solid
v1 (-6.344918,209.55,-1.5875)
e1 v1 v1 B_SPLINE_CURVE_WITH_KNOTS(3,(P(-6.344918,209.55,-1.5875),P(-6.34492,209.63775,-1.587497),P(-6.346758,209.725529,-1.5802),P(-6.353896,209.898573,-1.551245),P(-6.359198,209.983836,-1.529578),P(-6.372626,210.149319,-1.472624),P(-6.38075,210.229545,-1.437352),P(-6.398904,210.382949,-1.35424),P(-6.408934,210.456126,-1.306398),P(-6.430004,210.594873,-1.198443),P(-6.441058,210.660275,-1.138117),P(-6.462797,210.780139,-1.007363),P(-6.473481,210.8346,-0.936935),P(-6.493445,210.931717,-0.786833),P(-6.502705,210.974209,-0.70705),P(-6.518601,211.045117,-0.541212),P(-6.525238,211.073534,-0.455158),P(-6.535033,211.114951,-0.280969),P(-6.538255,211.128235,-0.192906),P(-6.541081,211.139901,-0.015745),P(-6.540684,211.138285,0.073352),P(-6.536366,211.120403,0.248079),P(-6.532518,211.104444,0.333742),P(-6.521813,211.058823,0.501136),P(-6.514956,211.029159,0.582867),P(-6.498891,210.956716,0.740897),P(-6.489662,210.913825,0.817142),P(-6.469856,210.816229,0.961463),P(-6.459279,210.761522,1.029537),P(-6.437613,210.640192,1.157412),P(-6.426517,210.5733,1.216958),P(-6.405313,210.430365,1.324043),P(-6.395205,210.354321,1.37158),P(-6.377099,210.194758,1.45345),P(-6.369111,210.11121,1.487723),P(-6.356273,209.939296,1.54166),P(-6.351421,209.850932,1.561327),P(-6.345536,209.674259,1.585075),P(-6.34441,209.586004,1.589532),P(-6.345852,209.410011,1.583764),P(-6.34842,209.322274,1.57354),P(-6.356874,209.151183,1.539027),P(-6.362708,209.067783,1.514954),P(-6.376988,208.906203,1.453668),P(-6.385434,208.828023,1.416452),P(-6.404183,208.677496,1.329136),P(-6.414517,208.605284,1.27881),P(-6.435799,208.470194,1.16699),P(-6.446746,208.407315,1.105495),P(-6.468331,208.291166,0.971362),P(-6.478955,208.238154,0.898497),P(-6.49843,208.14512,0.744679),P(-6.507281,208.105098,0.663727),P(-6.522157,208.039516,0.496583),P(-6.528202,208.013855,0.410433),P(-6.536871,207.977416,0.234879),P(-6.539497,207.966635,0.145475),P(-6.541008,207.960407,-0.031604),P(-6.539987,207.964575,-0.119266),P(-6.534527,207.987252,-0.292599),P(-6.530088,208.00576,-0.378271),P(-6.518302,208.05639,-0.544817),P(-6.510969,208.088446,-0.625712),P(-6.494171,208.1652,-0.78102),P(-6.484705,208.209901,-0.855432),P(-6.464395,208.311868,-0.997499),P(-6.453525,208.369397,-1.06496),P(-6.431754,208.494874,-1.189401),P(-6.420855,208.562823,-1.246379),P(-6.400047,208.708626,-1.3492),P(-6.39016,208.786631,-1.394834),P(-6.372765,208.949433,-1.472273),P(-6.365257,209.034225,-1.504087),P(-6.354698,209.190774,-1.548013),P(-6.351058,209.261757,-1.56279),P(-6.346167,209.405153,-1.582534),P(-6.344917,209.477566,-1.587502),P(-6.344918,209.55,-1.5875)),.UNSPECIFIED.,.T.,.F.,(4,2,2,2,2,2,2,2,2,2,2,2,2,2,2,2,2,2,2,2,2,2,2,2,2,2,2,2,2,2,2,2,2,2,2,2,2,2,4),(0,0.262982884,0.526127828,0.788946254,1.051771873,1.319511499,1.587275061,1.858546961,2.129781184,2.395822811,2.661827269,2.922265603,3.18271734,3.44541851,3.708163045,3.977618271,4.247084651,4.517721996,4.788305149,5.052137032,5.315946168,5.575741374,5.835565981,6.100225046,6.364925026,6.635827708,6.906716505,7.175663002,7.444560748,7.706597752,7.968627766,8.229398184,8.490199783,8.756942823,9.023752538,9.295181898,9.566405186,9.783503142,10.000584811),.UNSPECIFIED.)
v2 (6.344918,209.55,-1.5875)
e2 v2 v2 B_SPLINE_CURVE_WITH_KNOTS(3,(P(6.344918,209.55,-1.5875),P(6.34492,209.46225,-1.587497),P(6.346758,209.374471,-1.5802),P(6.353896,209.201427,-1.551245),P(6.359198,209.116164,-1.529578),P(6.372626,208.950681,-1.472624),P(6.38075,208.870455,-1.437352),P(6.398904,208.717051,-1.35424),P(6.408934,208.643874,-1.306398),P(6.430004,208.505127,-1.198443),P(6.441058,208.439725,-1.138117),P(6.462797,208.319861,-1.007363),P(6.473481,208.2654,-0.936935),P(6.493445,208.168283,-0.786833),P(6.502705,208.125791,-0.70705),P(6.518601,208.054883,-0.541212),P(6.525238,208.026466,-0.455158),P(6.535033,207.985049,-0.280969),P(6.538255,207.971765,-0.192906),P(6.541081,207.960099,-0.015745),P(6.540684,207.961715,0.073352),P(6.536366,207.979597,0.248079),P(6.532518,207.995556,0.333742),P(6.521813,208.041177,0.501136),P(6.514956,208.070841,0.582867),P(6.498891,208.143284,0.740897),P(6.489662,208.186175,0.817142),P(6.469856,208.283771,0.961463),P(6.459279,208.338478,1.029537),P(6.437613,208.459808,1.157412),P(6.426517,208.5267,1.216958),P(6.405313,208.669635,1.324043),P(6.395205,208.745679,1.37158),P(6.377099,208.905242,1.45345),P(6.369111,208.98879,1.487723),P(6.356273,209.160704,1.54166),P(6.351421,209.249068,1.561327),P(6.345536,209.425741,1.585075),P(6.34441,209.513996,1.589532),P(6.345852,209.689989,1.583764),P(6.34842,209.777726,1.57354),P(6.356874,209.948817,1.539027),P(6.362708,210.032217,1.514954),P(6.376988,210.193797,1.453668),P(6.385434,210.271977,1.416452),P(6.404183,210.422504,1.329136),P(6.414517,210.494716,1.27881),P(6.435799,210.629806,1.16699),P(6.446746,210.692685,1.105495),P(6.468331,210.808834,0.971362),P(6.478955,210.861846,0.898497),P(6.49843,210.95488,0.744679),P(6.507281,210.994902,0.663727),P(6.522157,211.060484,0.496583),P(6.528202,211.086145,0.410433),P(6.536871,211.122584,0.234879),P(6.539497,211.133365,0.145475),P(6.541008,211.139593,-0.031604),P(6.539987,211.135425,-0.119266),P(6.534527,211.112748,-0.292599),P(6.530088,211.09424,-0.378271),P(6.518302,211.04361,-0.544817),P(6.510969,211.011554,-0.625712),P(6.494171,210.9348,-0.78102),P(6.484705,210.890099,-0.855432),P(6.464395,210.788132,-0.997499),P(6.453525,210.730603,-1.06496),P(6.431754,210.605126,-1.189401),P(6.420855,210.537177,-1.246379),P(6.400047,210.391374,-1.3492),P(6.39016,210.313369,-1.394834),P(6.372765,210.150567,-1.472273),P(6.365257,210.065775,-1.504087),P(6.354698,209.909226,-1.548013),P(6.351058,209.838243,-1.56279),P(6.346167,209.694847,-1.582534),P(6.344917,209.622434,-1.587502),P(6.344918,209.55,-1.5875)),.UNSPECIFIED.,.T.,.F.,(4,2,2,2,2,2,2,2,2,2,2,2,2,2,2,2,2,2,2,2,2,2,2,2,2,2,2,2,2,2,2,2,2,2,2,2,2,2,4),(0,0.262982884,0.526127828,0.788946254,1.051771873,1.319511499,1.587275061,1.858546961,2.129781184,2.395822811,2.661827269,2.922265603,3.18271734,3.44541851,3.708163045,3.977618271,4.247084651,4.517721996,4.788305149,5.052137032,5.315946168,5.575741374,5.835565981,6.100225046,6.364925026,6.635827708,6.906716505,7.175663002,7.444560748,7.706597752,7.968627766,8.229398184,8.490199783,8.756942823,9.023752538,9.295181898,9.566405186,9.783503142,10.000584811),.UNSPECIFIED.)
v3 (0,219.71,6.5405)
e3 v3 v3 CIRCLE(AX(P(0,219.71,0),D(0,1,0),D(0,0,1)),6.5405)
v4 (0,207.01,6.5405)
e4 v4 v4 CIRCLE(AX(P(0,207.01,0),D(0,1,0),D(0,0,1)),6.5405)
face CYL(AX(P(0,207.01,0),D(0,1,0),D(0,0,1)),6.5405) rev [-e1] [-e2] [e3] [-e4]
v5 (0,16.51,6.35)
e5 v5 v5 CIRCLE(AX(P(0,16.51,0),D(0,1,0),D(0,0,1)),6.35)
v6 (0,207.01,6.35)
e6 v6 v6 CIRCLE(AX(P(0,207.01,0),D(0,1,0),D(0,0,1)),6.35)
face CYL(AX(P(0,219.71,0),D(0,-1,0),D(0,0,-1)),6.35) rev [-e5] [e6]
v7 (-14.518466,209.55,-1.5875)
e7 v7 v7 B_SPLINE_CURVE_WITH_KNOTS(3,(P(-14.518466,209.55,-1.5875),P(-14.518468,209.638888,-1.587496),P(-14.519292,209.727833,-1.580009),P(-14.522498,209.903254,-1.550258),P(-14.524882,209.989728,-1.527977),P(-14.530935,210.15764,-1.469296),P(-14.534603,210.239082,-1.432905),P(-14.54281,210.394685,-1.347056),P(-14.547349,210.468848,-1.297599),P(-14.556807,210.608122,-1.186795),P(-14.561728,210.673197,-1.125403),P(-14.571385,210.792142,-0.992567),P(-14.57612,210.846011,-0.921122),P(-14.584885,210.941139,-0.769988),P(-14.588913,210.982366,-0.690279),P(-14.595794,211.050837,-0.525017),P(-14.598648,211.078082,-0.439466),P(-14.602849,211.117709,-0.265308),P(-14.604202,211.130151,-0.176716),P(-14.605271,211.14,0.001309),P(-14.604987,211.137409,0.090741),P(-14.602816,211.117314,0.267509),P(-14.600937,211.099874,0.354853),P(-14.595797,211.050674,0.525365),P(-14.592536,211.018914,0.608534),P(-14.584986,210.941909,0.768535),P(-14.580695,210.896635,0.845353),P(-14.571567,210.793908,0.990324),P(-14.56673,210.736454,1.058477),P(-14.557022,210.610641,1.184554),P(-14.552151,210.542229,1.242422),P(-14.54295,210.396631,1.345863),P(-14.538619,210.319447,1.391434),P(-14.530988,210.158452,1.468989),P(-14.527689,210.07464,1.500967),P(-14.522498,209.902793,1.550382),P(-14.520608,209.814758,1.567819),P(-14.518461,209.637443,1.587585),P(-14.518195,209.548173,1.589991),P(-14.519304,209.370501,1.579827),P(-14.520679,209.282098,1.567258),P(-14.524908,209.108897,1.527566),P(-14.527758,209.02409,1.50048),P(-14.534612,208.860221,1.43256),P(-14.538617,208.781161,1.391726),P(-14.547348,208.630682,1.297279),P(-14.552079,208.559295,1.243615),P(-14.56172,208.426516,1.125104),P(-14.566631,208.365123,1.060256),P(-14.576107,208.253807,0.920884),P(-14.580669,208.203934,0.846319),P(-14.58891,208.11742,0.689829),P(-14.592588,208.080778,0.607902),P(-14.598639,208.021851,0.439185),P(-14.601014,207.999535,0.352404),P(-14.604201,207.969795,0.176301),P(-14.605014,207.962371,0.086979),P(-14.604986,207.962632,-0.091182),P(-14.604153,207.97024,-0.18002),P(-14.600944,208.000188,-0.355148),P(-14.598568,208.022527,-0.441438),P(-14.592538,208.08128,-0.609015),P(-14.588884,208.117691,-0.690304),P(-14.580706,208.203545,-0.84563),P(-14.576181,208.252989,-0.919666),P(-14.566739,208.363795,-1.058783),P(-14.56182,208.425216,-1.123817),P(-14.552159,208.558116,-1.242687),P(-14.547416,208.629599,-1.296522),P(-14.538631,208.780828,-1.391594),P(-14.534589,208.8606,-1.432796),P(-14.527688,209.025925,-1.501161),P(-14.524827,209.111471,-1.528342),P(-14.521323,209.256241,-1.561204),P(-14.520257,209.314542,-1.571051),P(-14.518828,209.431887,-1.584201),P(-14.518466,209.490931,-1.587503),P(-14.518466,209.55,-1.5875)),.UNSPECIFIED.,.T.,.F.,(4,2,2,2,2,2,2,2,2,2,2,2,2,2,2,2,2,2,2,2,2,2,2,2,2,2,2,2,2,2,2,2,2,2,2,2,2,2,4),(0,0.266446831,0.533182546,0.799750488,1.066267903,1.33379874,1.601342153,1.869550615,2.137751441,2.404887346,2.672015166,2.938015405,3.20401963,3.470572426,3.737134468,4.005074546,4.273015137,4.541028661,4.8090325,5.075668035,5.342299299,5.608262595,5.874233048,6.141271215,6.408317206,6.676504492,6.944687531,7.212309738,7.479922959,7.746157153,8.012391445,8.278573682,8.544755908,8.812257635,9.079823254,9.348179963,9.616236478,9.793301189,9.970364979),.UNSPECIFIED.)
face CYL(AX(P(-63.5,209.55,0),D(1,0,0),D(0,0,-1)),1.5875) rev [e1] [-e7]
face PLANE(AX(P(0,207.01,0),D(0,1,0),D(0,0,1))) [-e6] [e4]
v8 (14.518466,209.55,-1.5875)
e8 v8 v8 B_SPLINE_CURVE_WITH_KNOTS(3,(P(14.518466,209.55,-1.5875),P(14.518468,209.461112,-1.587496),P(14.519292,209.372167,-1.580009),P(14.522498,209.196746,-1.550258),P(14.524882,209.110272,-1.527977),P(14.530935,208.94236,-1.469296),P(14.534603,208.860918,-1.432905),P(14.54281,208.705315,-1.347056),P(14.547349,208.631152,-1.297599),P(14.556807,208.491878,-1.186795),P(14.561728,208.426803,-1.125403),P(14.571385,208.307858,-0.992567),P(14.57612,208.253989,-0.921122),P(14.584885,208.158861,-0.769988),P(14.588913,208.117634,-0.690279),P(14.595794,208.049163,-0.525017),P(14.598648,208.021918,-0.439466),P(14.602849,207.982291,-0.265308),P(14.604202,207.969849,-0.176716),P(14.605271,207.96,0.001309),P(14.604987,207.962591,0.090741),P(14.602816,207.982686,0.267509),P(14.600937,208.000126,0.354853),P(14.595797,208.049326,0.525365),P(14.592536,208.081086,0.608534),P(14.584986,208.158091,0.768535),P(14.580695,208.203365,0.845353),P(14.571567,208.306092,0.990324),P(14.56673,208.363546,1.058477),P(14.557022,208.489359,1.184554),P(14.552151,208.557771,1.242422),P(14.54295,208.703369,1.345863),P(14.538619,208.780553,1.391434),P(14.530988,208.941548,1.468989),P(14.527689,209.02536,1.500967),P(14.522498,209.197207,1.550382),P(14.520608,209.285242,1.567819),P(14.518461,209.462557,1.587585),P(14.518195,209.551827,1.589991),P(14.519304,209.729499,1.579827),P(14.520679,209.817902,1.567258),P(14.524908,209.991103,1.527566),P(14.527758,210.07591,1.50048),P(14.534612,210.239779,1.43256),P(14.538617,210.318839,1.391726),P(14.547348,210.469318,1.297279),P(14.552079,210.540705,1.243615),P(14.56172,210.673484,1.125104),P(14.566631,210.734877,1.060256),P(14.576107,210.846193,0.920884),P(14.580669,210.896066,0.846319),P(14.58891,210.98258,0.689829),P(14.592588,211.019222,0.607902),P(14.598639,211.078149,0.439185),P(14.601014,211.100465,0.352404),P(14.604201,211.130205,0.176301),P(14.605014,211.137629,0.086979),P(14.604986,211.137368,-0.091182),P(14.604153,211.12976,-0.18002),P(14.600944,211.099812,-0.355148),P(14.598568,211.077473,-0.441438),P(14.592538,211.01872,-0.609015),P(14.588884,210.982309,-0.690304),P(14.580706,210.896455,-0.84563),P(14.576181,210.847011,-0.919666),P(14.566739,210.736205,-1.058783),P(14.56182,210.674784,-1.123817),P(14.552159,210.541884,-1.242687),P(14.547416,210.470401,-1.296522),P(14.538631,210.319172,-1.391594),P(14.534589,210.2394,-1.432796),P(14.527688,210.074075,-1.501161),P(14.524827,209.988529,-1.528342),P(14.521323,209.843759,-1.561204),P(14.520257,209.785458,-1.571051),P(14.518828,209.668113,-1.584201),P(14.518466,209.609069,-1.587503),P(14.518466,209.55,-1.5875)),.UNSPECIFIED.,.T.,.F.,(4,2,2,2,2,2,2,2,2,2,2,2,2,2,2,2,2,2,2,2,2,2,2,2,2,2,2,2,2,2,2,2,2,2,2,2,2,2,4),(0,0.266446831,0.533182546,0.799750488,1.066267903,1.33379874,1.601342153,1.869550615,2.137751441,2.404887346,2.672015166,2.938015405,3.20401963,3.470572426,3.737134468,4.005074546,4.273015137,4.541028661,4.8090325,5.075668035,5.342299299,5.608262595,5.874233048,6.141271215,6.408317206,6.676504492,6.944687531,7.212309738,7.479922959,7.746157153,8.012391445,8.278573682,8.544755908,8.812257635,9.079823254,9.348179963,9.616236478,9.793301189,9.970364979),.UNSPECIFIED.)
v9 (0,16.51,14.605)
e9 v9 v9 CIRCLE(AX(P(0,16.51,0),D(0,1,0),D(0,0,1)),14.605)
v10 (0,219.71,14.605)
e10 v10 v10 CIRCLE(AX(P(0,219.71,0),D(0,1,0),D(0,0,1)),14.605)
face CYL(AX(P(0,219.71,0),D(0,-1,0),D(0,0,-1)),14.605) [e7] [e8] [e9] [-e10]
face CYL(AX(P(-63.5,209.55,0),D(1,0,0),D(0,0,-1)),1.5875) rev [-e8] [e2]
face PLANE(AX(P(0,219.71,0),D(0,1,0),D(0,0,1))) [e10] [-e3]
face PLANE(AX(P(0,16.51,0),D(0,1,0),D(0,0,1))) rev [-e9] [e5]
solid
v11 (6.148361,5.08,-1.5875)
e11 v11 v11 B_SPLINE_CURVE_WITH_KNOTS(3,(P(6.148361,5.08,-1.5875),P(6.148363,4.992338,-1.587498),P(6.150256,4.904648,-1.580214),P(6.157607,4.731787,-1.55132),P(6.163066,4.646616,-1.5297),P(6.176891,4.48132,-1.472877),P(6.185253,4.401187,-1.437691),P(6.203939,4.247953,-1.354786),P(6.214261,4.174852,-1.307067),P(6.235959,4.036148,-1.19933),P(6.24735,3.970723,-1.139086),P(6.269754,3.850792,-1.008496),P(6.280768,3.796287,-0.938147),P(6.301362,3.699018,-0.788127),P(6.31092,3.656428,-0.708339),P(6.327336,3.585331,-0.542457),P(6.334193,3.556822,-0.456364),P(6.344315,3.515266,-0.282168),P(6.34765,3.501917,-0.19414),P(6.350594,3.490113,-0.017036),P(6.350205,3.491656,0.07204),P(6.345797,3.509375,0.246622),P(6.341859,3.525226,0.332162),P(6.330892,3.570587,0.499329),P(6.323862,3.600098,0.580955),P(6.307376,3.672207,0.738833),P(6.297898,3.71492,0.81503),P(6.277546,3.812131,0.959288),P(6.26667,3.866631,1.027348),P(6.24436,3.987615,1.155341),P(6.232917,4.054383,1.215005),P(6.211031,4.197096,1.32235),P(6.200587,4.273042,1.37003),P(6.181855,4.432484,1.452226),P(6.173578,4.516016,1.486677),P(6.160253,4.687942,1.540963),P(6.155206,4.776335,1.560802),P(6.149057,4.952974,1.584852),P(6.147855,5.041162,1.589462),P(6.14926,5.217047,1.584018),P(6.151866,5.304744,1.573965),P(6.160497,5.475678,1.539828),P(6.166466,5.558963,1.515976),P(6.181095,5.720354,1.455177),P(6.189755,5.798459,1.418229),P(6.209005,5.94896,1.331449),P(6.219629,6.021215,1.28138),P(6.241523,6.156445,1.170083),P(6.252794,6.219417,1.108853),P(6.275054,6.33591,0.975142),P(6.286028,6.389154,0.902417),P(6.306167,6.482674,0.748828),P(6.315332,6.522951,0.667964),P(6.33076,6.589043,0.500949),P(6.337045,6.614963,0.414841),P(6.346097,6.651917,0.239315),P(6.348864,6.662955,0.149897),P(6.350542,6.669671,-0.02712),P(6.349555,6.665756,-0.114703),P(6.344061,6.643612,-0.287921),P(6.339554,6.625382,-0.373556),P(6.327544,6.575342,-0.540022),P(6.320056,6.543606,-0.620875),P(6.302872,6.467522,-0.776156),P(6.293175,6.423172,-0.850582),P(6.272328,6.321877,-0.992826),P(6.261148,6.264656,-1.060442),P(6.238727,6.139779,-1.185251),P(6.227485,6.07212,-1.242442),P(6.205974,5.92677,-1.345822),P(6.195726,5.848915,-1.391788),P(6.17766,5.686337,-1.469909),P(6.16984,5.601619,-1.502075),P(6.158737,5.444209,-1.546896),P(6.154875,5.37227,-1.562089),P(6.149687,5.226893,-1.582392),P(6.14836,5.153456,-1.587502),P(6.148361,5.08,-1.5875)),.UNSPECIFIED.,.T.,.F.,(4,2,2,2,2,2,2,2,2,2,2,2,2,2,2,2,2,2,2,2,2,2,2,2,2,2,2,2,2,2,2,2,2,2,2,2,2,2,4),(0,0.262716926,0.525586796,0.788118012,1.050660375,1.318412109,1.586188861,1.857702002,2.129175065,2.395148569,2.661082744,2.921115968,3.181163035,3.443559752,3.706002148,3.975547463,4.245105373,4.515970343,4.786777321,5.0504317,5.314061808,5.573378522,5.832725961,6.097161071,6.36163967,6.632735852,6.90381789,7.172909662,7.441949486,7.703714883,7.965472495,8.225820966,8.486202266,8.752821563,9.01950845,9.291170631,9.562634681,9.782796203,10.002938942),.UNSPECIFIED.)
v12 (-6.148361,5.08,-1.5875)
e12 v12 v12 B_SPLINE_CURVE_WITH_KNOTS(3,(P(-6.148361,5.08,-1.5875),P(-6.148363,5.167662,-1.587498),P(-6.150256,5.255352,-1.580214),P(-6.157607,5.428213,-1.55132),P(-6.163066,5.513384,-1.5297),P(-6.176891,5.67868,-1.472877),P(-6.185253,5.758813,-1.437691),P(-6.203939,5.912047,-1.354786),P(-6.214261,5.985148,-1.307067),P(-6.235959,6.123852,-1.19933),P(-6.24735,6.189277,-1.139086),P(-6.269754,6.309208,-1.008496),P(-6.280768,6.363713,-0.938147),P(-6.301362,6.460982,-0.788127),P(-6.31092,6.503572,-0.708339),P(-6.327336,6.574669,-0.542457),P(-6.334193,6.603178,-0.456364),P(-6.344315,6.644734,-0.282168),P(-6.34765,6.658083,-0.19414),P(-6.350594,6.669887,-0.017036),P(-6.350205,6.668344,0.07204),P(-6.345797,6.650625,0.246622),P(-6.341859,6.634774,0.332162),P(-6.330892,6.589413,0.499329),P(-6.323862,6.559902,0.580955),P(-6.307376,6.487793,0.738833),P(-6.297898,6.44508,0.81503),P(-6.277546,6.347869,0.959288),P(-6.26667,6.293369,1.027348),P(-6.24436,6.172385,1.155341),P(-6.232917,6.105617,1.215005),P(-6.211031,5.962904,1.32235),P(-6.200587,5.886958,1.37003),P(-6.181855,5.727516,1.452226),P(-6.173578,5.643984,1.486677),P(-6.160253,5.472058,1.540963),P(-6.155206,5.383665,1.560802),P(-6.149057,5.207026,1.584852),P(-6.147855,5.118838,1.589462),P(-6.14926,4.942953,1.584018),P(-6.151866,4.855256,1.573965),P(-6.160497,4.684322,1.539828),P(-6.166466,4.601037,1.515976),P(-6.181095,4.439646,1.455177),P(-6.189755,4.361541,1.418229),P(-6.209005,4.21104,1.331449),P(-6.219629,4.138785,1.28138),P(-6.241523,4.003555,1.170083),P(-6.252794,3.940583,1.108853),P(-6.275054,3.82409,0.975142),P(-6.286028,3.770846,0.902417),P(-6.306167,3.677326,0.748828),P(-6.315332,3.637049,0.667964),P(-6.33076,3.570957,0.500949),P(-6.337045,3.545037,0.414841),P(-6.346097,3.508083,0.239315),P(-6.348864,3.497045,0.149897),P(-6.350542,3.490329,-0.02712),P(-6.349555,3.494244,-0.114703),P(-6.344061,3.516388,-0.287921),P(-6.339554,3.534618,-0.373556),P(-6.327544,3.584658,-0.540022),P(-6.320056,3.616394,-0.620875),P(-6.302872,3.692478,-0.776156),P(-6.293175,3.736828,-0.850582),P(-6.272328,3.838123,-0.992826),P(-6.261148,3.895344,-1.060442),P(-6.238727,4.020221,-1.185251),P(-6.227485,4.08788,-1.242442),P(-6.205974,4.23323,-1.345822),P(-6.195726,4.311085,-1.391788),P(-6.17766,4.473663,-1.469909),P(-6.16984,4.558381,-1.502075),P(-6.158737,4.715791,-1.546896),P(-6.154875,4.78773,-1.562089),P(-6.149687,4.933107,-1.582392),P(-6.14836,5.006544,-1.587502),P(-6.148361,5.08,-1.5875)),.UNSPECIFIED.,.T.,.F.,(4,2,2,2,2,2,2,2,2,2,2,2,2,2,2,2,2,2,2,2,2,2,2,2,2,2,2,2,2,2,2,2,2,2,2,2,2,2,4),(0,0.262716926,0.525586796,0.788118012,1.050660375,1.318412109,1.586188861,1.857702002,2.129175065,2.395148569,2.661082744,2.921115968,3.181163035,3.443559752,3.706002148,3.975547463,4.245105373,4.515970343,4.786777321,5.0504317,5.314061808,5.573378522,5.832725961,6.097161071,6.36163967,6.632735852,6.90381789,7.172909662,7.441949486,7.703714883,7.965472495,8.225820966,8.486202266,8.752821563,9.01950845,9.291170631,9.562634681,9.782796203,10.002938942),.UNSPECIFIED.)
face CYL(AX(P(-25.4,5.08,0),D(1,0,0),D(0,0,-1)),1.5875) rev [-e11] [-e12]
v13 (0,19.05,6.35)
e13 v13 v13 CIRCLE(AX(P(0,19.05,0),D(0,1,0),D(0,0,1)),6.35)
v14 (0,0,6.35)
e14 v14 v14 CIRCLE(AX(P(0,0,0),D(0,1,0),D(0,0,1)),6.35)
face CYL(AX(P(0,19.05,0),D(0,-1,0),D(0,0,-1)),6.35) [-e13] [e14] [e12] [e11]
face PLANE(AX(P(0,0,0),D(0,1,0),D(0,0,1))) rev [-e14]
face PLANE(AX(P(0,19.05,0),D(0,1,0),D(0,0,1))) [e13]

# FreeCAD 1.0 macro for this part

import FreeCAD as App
import Part
import Sketcher

V = App.Vector
Q = App.Units.Quantity

doc = App.newDocument("Part")
body = doc.addObject("PartDesign::Body", "Body")

# Sketch on XZ plane
sketch1 = body.newObject("Sketcher::SketchObject", "Sketch")
sketch1.AttachmentSupport = (doc.getObject("XZ_Plane"), [""])
sketch1.MapMode = "FlatFace"
sketch1.addGeometry(Part.Circle(V(0, 0, 0), V(0, 0, 1), 6), False)
sketch1.addConstraint([
    Sketcher.Constraint("Coincident", 0, 3, -1, 1),
    Sketcher.Constraint("Diameter", 0, Q("0.5 in")),
])
pad1 = body.newObject("PartDesign::Pad", "Pad")
pad1.Profile = sketch1
pad1.Length = Q("0.75 in")
pad1.Reversed = True

# Sketch on YZ plane
sketch2 = body.newObject("Sketcher::SketchObject", "Sketch001")
sketch2.AttachmentSupport = (doc.getObject("YZ_Plane"), [""])
sketch2.MapMode = "FlatFace"
sketch2.addGeometry(Part.Circle(V(5.1, 0, 0), V(0, 0, 1), 1.6), False)
sketch2.addConstraint([
    Sketcher.Constraint("PointOnObject", 0, 3, -1),
    Sketcher.Constraint("Diameter", 0, Q("0.125 in")),
    Sketcher.Constraint("DistanceX", -1, 1, 0, 3, Q("0.2 in")),
])
pocket1 = body.newObject("PartDesign::Pocket", "Pocket")
pocket1.Profile = sketch2
pocket1.Length = Q("2 in")
pocket1.Midplane = True
body2 = doc.addObject("PartDesign::Body", "Body001")

# Sketch on XZ plane
sketch3 = body2.newObject("Sketcher::SketchObject", "Sketch002")
sketch3.AttachmentSupport = (doc.getObject("XZ_Plane001"), [""])
sketch3.MapMode = "FlatFace"
sketch3.AttachmentOffset = App.Placement(V(0, 0, -0.65 * 25.4), App.Rotation())
sketch3.addGeometry([
    Part.Circle(V(0, 0, 0), V(0, 0, 1), 15),
    Part.Circle(V(0, 0, 0), V(0, 0, 1), 6),
], False)
sketch3.addConstraint([
    Sketcher.Constraint("Coincident", 0, 3, -1, 1),
    Sketcher.Constraint("Coincident", 1, 3, -1, 1),
    Sketcher.Constraint("Diameter", 1, Q("0.5 in")),
    Sketcher.Constraint("Diameter", 0, Q("1.15 in")),
])
pad2 = body2.newObject("PartDesign::Pad", "Pad001")
pad2.Profile = sketch3
pad2.Length = Q("8 in")
pad2.Reversed = True

# Sketch on YZ plane
sketch4 = body2.newObject("Sketcher::SketchObject", "Sketch003")
sketch4.AttachmentSupport = (doc.getObject("YZ_Plane001"), [""])
sketch4.MapMode = "FlatFace"
sketch4.addGeometry(Part.Circle(V(209.6, 0, 0), V(0, 0, 1), 1.6), False)
sketch4.addConstraint([
    Sketcher.Constraint("PointOnObject", 0, 3, -1),
    Sketcher.Constraint("Diameter", 0, Q("0.125 in")),
    Sketcher.Constraint("DistanceX", -1, 1, 0, 3, Q("8.25 in")),
])
pocket2 = body2.newObject("PartDesign::Pocket", "Pocket001")
pocket2.Profile = sketch4
pocket2.Length = Q("5 in")
pocket2.Midplane = True

# Sketch on XZ plane
sketch5 = body2.newObject("Sketcher::SketchObject", "Sketch004")
sketch5.AttachmentSupport = (doc.getObject("XZ_Plane001"), [""])
sketch5.MapMode = "FlatFace"
sketch5.AttachmentOffset = App.Placement(V(0, 0, -8.65 * 25.4), App.Rotation())
sketch5.addGeometry(Part.Circle(V(0, 0, 0), V(0, 0, 1), 7), False)
sketch5.addConstraint([
    Sketcher.Constraint("Coincident", 0, 3, -1, 1),
    Sketcher.Constraint("Diameter", 0, Q("0.515 in")),
])
pocket3 = body2.newObject("PartDesign::Pocket", "Pocket002")
pocket3.Profile = sketch5
pocket3.Length = Q("1 in")
pocket3.Midplane = True

doc.recompute()
